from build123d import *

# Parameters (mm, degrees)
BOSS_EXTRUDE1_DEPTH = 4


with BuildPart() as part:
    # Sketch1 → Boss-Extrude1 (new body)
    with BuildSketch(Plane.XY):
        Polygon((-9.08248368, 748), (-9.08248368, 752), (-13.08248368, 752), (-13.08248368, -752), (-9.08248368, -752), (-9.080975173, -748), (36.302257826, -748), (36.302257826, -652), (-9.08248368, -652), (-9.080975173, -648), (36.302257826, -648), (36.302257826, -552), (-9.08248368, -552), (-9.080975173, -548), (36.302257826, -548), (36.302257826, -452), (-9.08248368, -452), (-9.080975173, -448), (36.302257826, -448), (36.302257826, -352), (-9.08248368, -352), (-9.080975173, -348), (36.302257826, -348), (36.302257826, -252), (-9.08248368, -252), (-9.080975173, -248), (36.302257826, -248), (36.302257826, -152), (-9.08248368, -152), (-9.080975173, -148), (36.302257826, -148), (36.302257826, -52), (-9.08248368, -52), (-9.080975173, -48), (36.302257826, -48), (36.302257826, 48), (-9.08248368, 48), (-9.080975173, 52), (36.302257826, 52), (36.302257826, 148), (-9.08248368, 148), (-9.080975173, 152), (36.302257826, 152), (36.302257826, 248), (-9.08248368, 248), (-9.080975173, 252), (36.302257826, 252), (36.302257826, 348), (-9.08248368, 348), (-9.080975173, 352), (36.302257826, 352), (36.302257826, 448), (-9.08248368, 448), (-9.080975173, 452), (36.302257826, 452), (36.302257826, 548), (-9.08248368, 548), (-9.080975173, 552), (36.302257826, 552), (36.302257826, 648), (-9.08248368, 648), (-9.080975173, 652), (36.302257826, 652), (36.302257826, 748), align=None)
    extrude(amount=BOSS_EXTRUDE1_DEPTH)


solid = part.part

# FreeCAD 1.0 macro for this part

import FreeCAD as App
import Part
import Sketcher

V = App.Vector
Q = App.Units.Quantity

doc = App.newDocument("Part")
body = doc.addObject("PartDesign::Body", "Body")

# Sketch on XY plane
sketch1 = body.newObject("Sketcher::SketchObject", "Sketch")
sketch1.AttachmentSupport = (doc.getObject("XY_Plane"), [""])
sketch1.MapMode = "FlatFace"
sketch1.addGeometry(Part.LineSegment(V(-9.082484, 748, 0), V(-9.082484, 752, 0)), False)
sketch1.addGeometry(Part.LineSegment(V(-9.082484, 752, 0), V(-13.082484, 752, 0)), False)
sketch1.addGeometry(Part.LineSegment(V(-13.082484, 752, 0), V(-13.082484, -752, 0)), False)
sketch1.addGeometry(Part.LineSegment(V(-13.082484, -752, 0), V(-9.082484, -752, 0)), False)
sketch1.addGeometry(Part.LineSegment(V(-9.082484, -752, 0), V(-9.080975, -748, 0)), False)
sketch1.addGeometry(Part.LineSegment(V(-9.080975, -748, 0), V(36.302258, -748, 0)), False)
sketch1.addGeometry(Part.LineSegment(V(36.302258, -748, 0), V(36.302258, -652, 0)), False)
sketch1.addGeometry(Part.LineSegment(V(36.302258, -652, 0), V(-9.082484, -652, 0)), False)
sketch1.addGeometry(Part.LineSegment(V(-9.082484, -652, 0), V(-9.080975, -648, 0)), False)
sketch1.addGeometry(Part.LineSegment(V(-9.080975, -648, 0), V(36.302258, -648, 0)), False)
sketch1.addGeometry(Part.LineSegment(V(36.302258, -648, 0), V(36.302258, -552, 0)), False)
sketch1.addGeometry(Part.LineSegment(V(36.302258, -552, 0), V(-9.082484, -552, 0)), False)
sketch1.addGeometry(Part.LineSegment(V(-9.082484, -552, 0), V(-9.080975, -548, 0)), False)
sketch1.addGeometry(Part.LineSegment(V(-9.080975, -548, 0), V(36.302258, -548, 0)), False)
sketch1.addGeometry(Part.LineSegment(V(36.302258, -548, 0), V(36.302258, -452, 0)), False)
sketch1.addGeometry(Part.LineSegment(V(36.302258, -452, 0), V(-9.082484, -452, 0)), False)
sketch1.addGeometry(Part.LineSegment(V(-9.082484, -452, 0), V(-9.080975, -448, 0)), False)
sketch1.addGeometry(Part.LineSegment(V(-9.080975, -448, 0), V(36.302258, -448, 0)), False)
sketch1.addGeometry(Part.LineSegment(V(36.302258, -448, 0), V(36.302258, -352, 0)), False)
sketch1.addGeometry(Part.LineSegment(V(36.302258, -352, 0), V(-9.082484, -352, 0)), False)
sketch1.addGeometry(Part.LineSegment(V(-9.082484, -352, 0), V(-9.080975, -348, 0)), False)
sketch1.addGeometry(Part.LineSegment(V(-9.080975, -348, 0), V(36.302258, -348, 0)), False)
sketch1.addGeometry(Part.LineSegment(V(36.302258, -348, 0), V(36.302258, -252, 0)), False)
sketch1.addGeometry(Part.LineSegment(V(36.302258, -252, 0), V(-9.082484, -252, 0)), False)
sketch1.addGeometry(Part.LineSegment(V(-9.082484, -252, 0), V(-9.080975, -248, 0)), False)
sketch1.addGeometry(Part.LineSegment(V(-9.080975, -248, 0), V(36.302258, -248, 0)), False)
sketch1.addGeometry(Part.LineSegment(V(36.302258, -248, 0), V(36.302258, -152, 0)), False)
sketch1.addGeometry(Part.LineSegment(V(36.302258, -152, 0), V(-9.082484, -152, 0)), False)
sketch1.addGeometry(Part.LineSegment(V(-9.082484, -152, 0), V(-9.080975, -148, 0)), False)
sketch1.addGeometry(Part.LineSegment(V(-9.080975, -148, 0), V(36.302258, -148, 0)), False)
sketch1.addGeometry(Part.LineSegment(V(36.302258, -148, 0), V(36.302258, -52, 0)), False)
sketch1.addGeometry(Part.LineSegment(V(36.302258, -52, 0), V(-9.082484, -52, 0)), False)
sketch1.addGeometry(Part.LineSegment(V(-9.082484, -52, 0), V(-9.080975, -48, 0)), False)
sketch1.addGeometry(Part.LineSegment(V(-9.080975, -48, 0), V(36.302258, -48, 0)), False)
sketch1.addGeometry(Part.LineSegment(V(36.302258, -48, 0), V(36.302258, 48, 0)), False)
sketch1.addGeometry(Part.LineSegment(V(36.302258, 48, 0), V(-9.082484, 48, 0)), False)
sketch1.addGeometry(Part.LineSegment(V(-9.082484, 48, 0), V(-9.080975, 52, 0)), False)
sketch1.addGeometry(Part.LineSegment(V(-9.080975, 52, 0), V(36.302258, 52, 0)), False)
sketch1.addGeometry(Part.LineSegment(V(36.302258, 52, 0), V(36.302258, 148, 0)), False)
sketch1.addGeometry(Part.LineSegment(V(36.302258, 148, 0), V(-9.082484, 148, 0)), False)
sketch1.addGeometry(Part.LineSegment(V(-9.082484, 148, 0), V(-9.080975, 152, 0)), False)
sketch1.addGeometry(Part.LineSegment(V(-9.080975, 152, 0), V(36.302258, 152, 0)), False)
sketch1.addGeometry(Part.LineSegment(V(36.302258, 152, 0), V(36.302258, 248, 0)), False)
sketch1.addGeometry(Part.LineSegment(V(36.302258, 248, 0), V(-9.082484, 248, 0)), False)
sketch1.addGeometry(Part.LineSegment(V(-9.082484, 248, 0), V(-9.080975, 252, 0)), False)
sketch1.addGeometry(Part.LineSegment(V(-9.080975, 252, 0), V(36.302258, 252, 0)), False)
sketch1.addGeometry(Part.LineSegment(V(36.302258, 252, 0), V(36.302258, 348, 0)), False)
sketch1.addGeometry(Part.LineSegment(V(36.302258, 348, 0), V(-9.082484, 348, 0)), False)
sketch1.addGeometry(Part.LineSegment(V(-9.082484, 348, 0), V(-9.080975, 352, 0)), False)
sketch1.addGeometry(Part.LineSegment(V(-9.080975, 352, 0), V(36.302258, 352, 0)), False)
sketch1.addGeometry(Part.LineSegment(V(36.302258, 352, 0), V(36.302258, 448, 0)), False)
sketch1.addGeometry(Part.LineSegment(V(36.302258, 448, 0), V(-9.082484, 448, 0)), False)
sketch1.addGeometry(Part.LineSegment(V(-9.082484, 448, 0), V(-9.080975, 452, 0)), False)
sketch1.addGeometry(Part.LineSegment(V(-9.080975, 452, 0), V(36.302258, 452, 0)), False)
sketch1.addGeometry(Part.LineSegment(V(36.302258, 452, 0), V(36.302258, 548, 0)), False)
sketch1.addGeometry(Part.LineSegment(V(36.302258, 548, 0), V(-9.082484, 548, 0)), False)
sketch1.addGeometry(Part.LineSegment(V(-9.082484, 548, 0), V(-9.080975, 552, 0)), False)
sketch1.addGeometry(Part.LineSegment(V(-9.080975, 552, 0), V(36.302258, 552, 0)), False)
sketch1.addGeometry(Part.LineSegment(V(36.302258, 552, 0), V(36.302258, 648, 0)), False)
sketch1.addGeometry(Part.LineSegment(V(36.302258, 648, 0), V(-9.082484, 648, 0)), False)
sketch1.addGeometry(Part.LineSegment(V(-9.082484, 648, 0), V(-9.080975, 652, 0)), False)
sketch1.addGeometry(Part.LineSegment(V(-9.080975, 652, 0), V(36.302258, 652, 0)), False)
sketch1.addGeometry(Part.LineSegment(V(36.302258, 652, 0), V(36.302258, 748, 0)), False)
sketch1.addGeometry(Part.LineSegment(V(36.302258, 748, 0), V(-9.082484, 748, 0)), False)
sketch1.addConstraint(Sketcher.Constraint("Coincident", 0, 2, 1, 1))
sketch1.addConstraint(Sketcher.Constraint("Coincident", 1, 2, 2, 1))
sketch1.addConstraint(Sketcher.Constraint("Coincident", 2, 2, 3, 1))
sketch1.addConstraint(Sketcher.Constraint("Coincident", 3, 2, 4, 1))
sketch1.addConstraint(Sketcher.Constraint("Coincident", 4, 2, 5, 1))
sketch1.addConstraint(Sketcher.Constraint("Coincident", 5, 2, 6, 1))
sketch1.addConstraint(Sketcher.Constraint("Coincident", 6, 2, 7, 1))
sketch1.addConstraint(Sketcher.Constraint("Coincident", 7, 2, 8, 1))
sketch1.addConstraint(Sketcher.Constraint("Coincident", 8, 2, 9, 1))
sketch1.addConstraint(Sketcher.Constraint("Coincident", 9, 2, 10, 1))
sketch1.addConstraint(Sketcher.Constraint("Coincident", 10, 2, 11, 1))
sketch1.addConstraint(Sketcher.Constraint("Coincident", 11, 2, 12, 1))
sketch1.addConstraint(Sketcher.Constraint("Coincident", 12, 2, 13, 1))
sketch1.addConstraint(Sketcher.Constraint("Coincident", 13, 2, 14, 1))
sketch1.addConstraint(Sketcher.Constraint("Coincident", 14, 2, 15, 1))
sketch1.addConstraint(Sketcher.Constraint("Coincident", 15, 2, 16, 1))
sketch1.addConstraint(Sketcher.Constraint("Coincident", 16, 2, 17, 1))
sketch1.addConstraint(Sketcher.Constraint("Coincident", 17, 2, 18, 1))
sketch1.addConstraint(Sketcher.Constraint("Coincident", 18, 2, 19, 1))
sketch1.addConstraint(Sketcher.Constraint("Coincident", 19, 2, 20, 1))
sketch1.addConstraint(Sketcher.Constraint("Coincident", 20, 2, 21, 1))
sketch1.addConstraint(Sketcher.Constraint("Coincident", 21, 2, 22, 1))
sketch1.addConstraint(Sketcher.Constraint("Coincident", 22, 2, 23, 1))
sketch1.addConstraint(Sketcher.Constraint("Coincident", 23, 2, 24, 1))
sketch1.addConstraint(Sketcher.Constraint("Coincident", 24, 2, 25, 1))
sketch1.addConstraint(Sketcher.Constraint("Coincident", 25, 2, 26, 1))
sketch1.addConstraint(Sketcher.Constraint("Coincident", 26, 2, 27, 1))
sketch1.addConstraint(Sketcher.Constraint("Coincident", 27, 2, 28, 1))
sketch1.addConstraint(Sketcher.Constraint("Coincident", 28, 2, 29, 1))
sketch1.addConstraint(Sketcher.Constraint("Coincident", 29, 2, 30, 1))
sketch1.addConstraint(Sketcher.Constraint("Coincident", 30, 2, 31, 1))
sketch1.addConstraint(Sketcher.Constraint("Coincident", 31, 2, 32, 1))
sketch1.addConstraint(Sketcher.Constraint("Coincident", 32, 2, 33, 1))
sketch1.addConstraint(Sketcher.Constraint("Coincident", 33, 2, 34, 1))
sketch1.addConstraint(Sketcher.Constraint("Coincident", 34, 2, 35, 1))
sketch1.addConstraint(Sketcher.Constraint("Coincident", 35, 2, 36, 1))
sketch1.addConstraint(Sketcher.Constraint("Coincident", 36, 2, 37, 1))
sketch1.addConstraint(Sketcher.Constraint("Coincident", 37, 2, 38, 1))
sketch1.addConstraint(Sketcher.Constraint("Coincident", 38, 2, 39, 1))
sketch1.addConstraint(Sketcher.Constraint("Coincident", 39, 2, 40, 1))
sketch1.addConstraint(Sketcher.Constraint("Coincident", 40, 2, 41, 1))
sketch1.addConstraint(Sketcher.Constraint("Coincident", 41, 2, 42, 1))
sketch1.addConstraint(Sketcher.Constraint("Coincident", 42, 2, 43, 1))
sketch1.addConstraint(Sketcher.Constraint("Coincident", 43, 2, 44, 1))
sketch1.addConstraint(Sketcher.Constraint("Coincident", 44, 2, 45, 1))
sketch1.addConstraint(Sketcher.Constraint("Coincident", 45, 2, 46, 1))
sketch1.addConstraint(Sketcher.Constraint("Coincident", 46, 2, 47, 1))
sketch1.addConstraint(Sketcher.Constraint("Coincident", 47, 2, 48, 1))
sketch1.addConstraint(Sketcher.Constraint("Coincident", 48, 2, 49, 1))
sketch1.addConstraint(Sketcher.Constraint("Coincident", 49, 2, 50, 1))
sketch1.addConstraint(Sketcher.Constraint("Coincident", 50, 2, 51, 1))
sketch1.addConstraint(Sketcher.Constraint("Coincident", 51, 2, 52, 1))
sketch1.addConstraint(Sketcher.Constraint("Coincident", 52, 2, 53, 1))
sketch1.addConstraint(Sketcher.Constraint("Coincident", 53, 2, 54, 1))
sketch1.addConstraint(Sketcher.Constraint("Coincident", 54, 2, 55, 1))
sketch1.addConstraint(Sketcher.Constraint("Coincident", 55, 2, 56, 1))
sketch1.addConstraint(Sketcher.Constraint("Coincident", 56, 2, 57, 1))
sketch1.addConstraint(Sketcher.Constraint("Coincident", 57, 2, 58, 1))
sketch1.addConstraint(Sketcher.Constraint("Coincident", 58, 2, 59, 1))
sketch1.addConstraint(Sketcher.Constraint("Coincident", 59, 2, 60, 1))
sketch1.addConstraint(Sketcher.Constraint("Coincident", 60, 2, 61, 1))
sketch1.addConstraint(Sketcher.Constraint("Coincident", 61, 2, 62, 1))
sketch1.addConstraint(Sketcher.Constraint("Coincident", 62, 2, 63, 1))
sketch1.addConstraint(Sketcher.Constraint("Coincident", 63, 2, 0, 1))
sketch1.addConstraint(Sketcher.Constraint("Vertical", 0))
sketch1.addConstraint(Sketcher.Constraint("Horizontal", 1))
sketch1.addConstraint(Sketcher.Constraint("Vertical", 2))
sketch1.addConstraint(Sketcher.Constraint("Horizontal", 3))
sketch1.addConstraint(Sketcher.Constraint("Horizontal", 5))
sketch1.addConstraint(Sketcher.Constraint("Vertical", 6))
sketch1.addConstraint(Sketcher.Constraint("Horizontal", 7))
sketch1.addConstraint(Sketcher.Constraint("Horizontal", 9))
sketch1.addConstraint(Sketcher.Constraint("Vertical", 10))
sketch1.addConstraint(Sketcher.Constraint("Horizontal", 11))
sketch1.addConstraint(Sketcher.Constraint("Horizontal", 13))
sketch1.addConstraint(Sketcher.Constraint("Vertical", 14))
sketch1.addConstraint(Sketcher.Constraint("Horizontal", 15))
sketch1.addConstraint(Sketcher.Constraint("Horizontal", 17))
sketch1.addConstraint(Sketcher.Constraint("Vertical", 18))
sketch1.addConstraint(Sketcher.Constraint("Horizontal", 19))
sketch1.addConstraint(Sketcher.Constraint("Horizontal", 21))
sketch1.addConstraint(Sketcher.Constraint("Vertical", 22))
sketch1.addConstraint(Sketcher.Constraint("Horizontal", 23))
sketch1.addConstraint(Sketcher.Constraint("Horizontal", 25))
sketch1.addConstraint(Sketcher.Constraint("Vertical", 26))
sketch1.addConstraint(Sketcher.Constraint("Horizontal", 27))
sketch1.addConstraint(Sketcher.Constraint("Horizontal", 29))
sketch1.addConstraint(Sketcher.Constraint("Vertical", 30))
sketch1.addConstraint(Sketcher.Constraint("Horizontal", 31))
sketch1.addConstraint(Sketcher.Constraint("Horizontal", 33))
sketch1.addConstraint(Sketcher.Constraint("Vertical", 34))
sketch1.addConstraint(Sketcher.Constraint("Horizontal", 35))
sketch1.addConstraint(Sketcher.Constraint("Horizontal", 37))
sketch1.addConstraint(Sketcher.Constraint("Vertical", 38))
sketch1.addConstraint(Sketcher.Constraint("Horizontal", 39))
sketch1.addConstraint(Sketcher.Constraint("Horizontal", 41))
sketch1.addConstraint(Sketcher.Constraint("Vertical", 42))
sketch1.addConstraint(Sketcher.Constraint("Horizontal", 43))
sketch1.addConstraint(Sketcher.Constraint("Horizontal", 45))
sketch1.addConstraint(Sketcher.Constraint("Vertical", 46))
sketch1.addConstraint(Sketcher.Constraint("Horizontal", 47))
sketch1.addConstraint(Sketcher.Constraint("Horizontal", 49))
sketch1.addConstraint(Sketcher.Constraint("Vertical", 50))
sketch1.addConstraint(Sketcher.Constraint("Horizontal", 51))
sketch1.addConstraint(Sketcher.Constraint("Horizontal", 53))
sketch1.addConstraint(Sketcher.Constraint("Vertical", 54))
sketch1.addConstraint(Sketcher.Constraint("Horizontal", 55))
sketch1.addConstraint(Sketcher.Constraint("Horizontal", 57))
sketch1.addConstraint(Sketcher.Constraint("Vertical", 58))
sketch1.addConstraint(Sketcher.Constraint("Horizontal", 59))
sketch1.addConstraint(Sketcher.Constraint("Horizontal", 61))
sketch1.addConstraint(Sketcher.Constraint("Vertical", 62))
sketch1.addConstraint(Sketcher.Constraint("Horizontal", 63))
sketch1.addConstraint(Sketcher.Constraint("Symmetric", 0, 2, 3, 2, -1))
sketch1.addConstraint(Sketcher.Constraint("Symmetric", 30, 2, 37, 2, -1))
sketch1.addConstraint(Sketcher.Constraint("Symmetric", 26, 2, 41, 2, -1))
sketch1.addConstraint(Sketcher.Constraint("Symmetric", 22, 2, 45, 2, -1))
sketch1.addConstraint(Sketcher.Constraint("Symmetric", 18, 2, 49, 2, -1))
sketch1.addConstraint(Sketcher.Constraint("Symmetric", 14, 2, 53, 2, -1))
sketch1.addConstraint(Sketcher.Constraint("Symmetric", 10, 2, 57, 2, -1))
sketch1.addConstraint(Sketcher.Constraint("Symmetric", 6, 2, 61, 2, -1))
sketch1.addConstraint(Sketcher.Constraint("Parallel", 4, 8))
sketch1.addConstraint(Sketcher.Constraint("Parallel", 8, 12))
sketch1.addConstraint(Sketcher.Constraint("Parallel", 12, 16))
sketch1.addConstraint(Sketcher.Constraint("Parallel", 16, 20))
sketch1.addConstraint(Sketcher.Constraint("Parallel", 20, 24))
sketch1.addConstraint(Sketcher.Constraint("Parallel", 24, 28))
sketch1.addConstraint(Sketcher.Constraint("Parallel", 28, 32))
sketch1.addConstraint(Sketcher.Constraint("Parallel", 32, 36))
sketch1.addConstraint(Sketcher.Constraint("Parallel", 36, 40))
sketch1.addConstraint(Sketcher.Constraint("Parallel", 40, 44))
sketch1.addConstraint(Sketcher.Constraint("Parallel", 44, 48))
sketch1.addConstraint(Sketcher.Constraint("Parallel", 48, 52))
sketch1.addConstraint(Sketcher.Constraint("Parallel", 52, 56))
sketch1.addConstraint(Sketcher.Constraint("Parallel", 56, 60))
sketch1.addConstraint(Sketcher.Constraint("Vertical", 3, 2, 7, 2))
sketch1.addConstraint(Sketcher.Constraint("Vertical", 6, 2, 9, 2))
sketch1.addConstraint(Sketcher.Constraint("Vertical", 7, 2, 11, 2))
sketch1.addConstraint(Sketcher.Constraint("Vertical", 10, 2, 13, 2))
sketch1.addConstraint(Sketcher.Constraint("Vertical", 11, 2, 15, 2))
sketch1.addConstraint(Sketcher.Constraint("Vertical", 14, 2, 17, 2))
sketch1.addConstraint(Sketcher.Constraint("Vertical", 15, 2, 19, 2))
sketch1.addConstraint(Sketcher.Constraint("Vertical", 18, 2, 21, 2))
sketch1.addConstraint(Sketcher.Constraint("Vertical", 19, 2, 23, 2))
sketch1.addConstraint(Sketcher.Constraint("Vertical", 22, 2, 25, 2))
sketch1.addConstraint(Sketcher.Constraint("Vertical", 23, 2, 27, 2))
sketch1.addConstraint(Sketcher.Constraint("Vertical", 26, 2, 29, 2))
sketch1.addConstraint(Sketcher.Constraint("Vertical", 27, 2, 31, 2))
sketch1.addConstraint(Sketcher.Constraint("Vertical", 30, 2, 33, 2))
sketch1.addConstraint(Sketcher.Constraint("Vertical", 31, 2, 35, 2))
sketch1.addConstraint(Sketcher.Constraint("Vertical", 35, 2, 39, 2))
sketch1.addConstraint(Sketcher.Constraint("Vertical", 39, 2, 43, 2))
sketch1.addConstraint(Sketcher.Constraint("Vertical", 43, 2, 47, 2))
sketch1.addConstraint(Sketcher.Constraint("Vertical", 47, 2, 51, 2))
sketch1.addConstraint(Sketcher.Constraint("Vertical", 51, 2, 55, 2))
sketch1.addConstraint(Sketcher.Constraint("Vertical", 55, 2, 59, 2))
sketch1.addConstraint(Sketcher.Constraint("Equal", 3, 0))
sketch1.addConstraint(Sketcher.Constraint("Equal", 6, 10))
sketch1.addConstraint(Sketcher.Constraint("Equal", 10, 14))
sketch1.addConstraint(Sketcher.Constraint("Equal", 14, 18))
sketch1.addConstraint(Sketcher.Constraint("Equal", 18, 22))
sketch1.addConstraint(Sketcher.Constraint("Equal", 22, 26))
sketch1.addConstraint(Sketcher.Constraint("Equal", 26, 30))
sketch1.addConstraint(Sketcher.Constraint("Equal", 30, 34))
sketch1.addConstraint(Sketcher.Constraint("Equal", 34, 38))
sketch1.addConstraint(Sketcher.Constraint("Equal", 38, 42))
sketch1.addConstraint(Sketcher.Constraint("Equal", 42, 46))
sketch1.addConstraint(Sketcher.Constraint("Equal", 46, 50))
sketch1.addConstraint(Sketcher.Constraint("Equal", 50, 54))
sketch1.addConstraint(Sketcher.Constraint("Equal", 54, 58))
sketch1.addConstraint(Sketcher.Constraint("Equal", 58, 62))
sketch1.addConstraint(Sketcher.Constraint("Equal", 4, 8))
sketch1.addConstraint(Sketcher.Constraint("Equal", 8, 12))
sketch1.addConstraint(Sketcher.Constraint("Equal", 12, 16))
sketch1.addConstraint(Sketcher.Constraint("Equal", 16, 20))
sketch1.addConstraint(Sketcher.Constraint("Equal", 20, 24))
sketch1.addConstraint(Sketcher.Constraint("Equal", 24, 28))
sketch1.addConstraint(Sketcher.Constraint("Equal", 28, 32))
sketch1.addConstraint(Sketcher.Constraint("Equal", 32, 36))
sketch1.addConstraint(Sketcher.Constraint("DistanceX", 1, 2, 1, 1, Q("4 mm")))
sketch1.addConstraint(Sketcher.Constraint("DistanceY", 2, 2, 2, 1, Q("1504 mm")))
sketch1.addConstraint(Sketcher.Constraint("DistanceX", 7, 2, 7, 1, Q("45.384742 mm")))
sketch1.addConstraint(Sketcher.Constraint("DistanceX", 5, 1, 5, 2, Q("45.383233 mm")))
sketch1.addConstraint(Sketcher.Constraint("DistanceX", 0, 2, -1, 1, Q("9.082484 mm")))
pad1 = body.newObject("PartDesign::Pad", "Pad")
pad1.Profile = sketch1
pad1.Length = 4

doc.recompute()
